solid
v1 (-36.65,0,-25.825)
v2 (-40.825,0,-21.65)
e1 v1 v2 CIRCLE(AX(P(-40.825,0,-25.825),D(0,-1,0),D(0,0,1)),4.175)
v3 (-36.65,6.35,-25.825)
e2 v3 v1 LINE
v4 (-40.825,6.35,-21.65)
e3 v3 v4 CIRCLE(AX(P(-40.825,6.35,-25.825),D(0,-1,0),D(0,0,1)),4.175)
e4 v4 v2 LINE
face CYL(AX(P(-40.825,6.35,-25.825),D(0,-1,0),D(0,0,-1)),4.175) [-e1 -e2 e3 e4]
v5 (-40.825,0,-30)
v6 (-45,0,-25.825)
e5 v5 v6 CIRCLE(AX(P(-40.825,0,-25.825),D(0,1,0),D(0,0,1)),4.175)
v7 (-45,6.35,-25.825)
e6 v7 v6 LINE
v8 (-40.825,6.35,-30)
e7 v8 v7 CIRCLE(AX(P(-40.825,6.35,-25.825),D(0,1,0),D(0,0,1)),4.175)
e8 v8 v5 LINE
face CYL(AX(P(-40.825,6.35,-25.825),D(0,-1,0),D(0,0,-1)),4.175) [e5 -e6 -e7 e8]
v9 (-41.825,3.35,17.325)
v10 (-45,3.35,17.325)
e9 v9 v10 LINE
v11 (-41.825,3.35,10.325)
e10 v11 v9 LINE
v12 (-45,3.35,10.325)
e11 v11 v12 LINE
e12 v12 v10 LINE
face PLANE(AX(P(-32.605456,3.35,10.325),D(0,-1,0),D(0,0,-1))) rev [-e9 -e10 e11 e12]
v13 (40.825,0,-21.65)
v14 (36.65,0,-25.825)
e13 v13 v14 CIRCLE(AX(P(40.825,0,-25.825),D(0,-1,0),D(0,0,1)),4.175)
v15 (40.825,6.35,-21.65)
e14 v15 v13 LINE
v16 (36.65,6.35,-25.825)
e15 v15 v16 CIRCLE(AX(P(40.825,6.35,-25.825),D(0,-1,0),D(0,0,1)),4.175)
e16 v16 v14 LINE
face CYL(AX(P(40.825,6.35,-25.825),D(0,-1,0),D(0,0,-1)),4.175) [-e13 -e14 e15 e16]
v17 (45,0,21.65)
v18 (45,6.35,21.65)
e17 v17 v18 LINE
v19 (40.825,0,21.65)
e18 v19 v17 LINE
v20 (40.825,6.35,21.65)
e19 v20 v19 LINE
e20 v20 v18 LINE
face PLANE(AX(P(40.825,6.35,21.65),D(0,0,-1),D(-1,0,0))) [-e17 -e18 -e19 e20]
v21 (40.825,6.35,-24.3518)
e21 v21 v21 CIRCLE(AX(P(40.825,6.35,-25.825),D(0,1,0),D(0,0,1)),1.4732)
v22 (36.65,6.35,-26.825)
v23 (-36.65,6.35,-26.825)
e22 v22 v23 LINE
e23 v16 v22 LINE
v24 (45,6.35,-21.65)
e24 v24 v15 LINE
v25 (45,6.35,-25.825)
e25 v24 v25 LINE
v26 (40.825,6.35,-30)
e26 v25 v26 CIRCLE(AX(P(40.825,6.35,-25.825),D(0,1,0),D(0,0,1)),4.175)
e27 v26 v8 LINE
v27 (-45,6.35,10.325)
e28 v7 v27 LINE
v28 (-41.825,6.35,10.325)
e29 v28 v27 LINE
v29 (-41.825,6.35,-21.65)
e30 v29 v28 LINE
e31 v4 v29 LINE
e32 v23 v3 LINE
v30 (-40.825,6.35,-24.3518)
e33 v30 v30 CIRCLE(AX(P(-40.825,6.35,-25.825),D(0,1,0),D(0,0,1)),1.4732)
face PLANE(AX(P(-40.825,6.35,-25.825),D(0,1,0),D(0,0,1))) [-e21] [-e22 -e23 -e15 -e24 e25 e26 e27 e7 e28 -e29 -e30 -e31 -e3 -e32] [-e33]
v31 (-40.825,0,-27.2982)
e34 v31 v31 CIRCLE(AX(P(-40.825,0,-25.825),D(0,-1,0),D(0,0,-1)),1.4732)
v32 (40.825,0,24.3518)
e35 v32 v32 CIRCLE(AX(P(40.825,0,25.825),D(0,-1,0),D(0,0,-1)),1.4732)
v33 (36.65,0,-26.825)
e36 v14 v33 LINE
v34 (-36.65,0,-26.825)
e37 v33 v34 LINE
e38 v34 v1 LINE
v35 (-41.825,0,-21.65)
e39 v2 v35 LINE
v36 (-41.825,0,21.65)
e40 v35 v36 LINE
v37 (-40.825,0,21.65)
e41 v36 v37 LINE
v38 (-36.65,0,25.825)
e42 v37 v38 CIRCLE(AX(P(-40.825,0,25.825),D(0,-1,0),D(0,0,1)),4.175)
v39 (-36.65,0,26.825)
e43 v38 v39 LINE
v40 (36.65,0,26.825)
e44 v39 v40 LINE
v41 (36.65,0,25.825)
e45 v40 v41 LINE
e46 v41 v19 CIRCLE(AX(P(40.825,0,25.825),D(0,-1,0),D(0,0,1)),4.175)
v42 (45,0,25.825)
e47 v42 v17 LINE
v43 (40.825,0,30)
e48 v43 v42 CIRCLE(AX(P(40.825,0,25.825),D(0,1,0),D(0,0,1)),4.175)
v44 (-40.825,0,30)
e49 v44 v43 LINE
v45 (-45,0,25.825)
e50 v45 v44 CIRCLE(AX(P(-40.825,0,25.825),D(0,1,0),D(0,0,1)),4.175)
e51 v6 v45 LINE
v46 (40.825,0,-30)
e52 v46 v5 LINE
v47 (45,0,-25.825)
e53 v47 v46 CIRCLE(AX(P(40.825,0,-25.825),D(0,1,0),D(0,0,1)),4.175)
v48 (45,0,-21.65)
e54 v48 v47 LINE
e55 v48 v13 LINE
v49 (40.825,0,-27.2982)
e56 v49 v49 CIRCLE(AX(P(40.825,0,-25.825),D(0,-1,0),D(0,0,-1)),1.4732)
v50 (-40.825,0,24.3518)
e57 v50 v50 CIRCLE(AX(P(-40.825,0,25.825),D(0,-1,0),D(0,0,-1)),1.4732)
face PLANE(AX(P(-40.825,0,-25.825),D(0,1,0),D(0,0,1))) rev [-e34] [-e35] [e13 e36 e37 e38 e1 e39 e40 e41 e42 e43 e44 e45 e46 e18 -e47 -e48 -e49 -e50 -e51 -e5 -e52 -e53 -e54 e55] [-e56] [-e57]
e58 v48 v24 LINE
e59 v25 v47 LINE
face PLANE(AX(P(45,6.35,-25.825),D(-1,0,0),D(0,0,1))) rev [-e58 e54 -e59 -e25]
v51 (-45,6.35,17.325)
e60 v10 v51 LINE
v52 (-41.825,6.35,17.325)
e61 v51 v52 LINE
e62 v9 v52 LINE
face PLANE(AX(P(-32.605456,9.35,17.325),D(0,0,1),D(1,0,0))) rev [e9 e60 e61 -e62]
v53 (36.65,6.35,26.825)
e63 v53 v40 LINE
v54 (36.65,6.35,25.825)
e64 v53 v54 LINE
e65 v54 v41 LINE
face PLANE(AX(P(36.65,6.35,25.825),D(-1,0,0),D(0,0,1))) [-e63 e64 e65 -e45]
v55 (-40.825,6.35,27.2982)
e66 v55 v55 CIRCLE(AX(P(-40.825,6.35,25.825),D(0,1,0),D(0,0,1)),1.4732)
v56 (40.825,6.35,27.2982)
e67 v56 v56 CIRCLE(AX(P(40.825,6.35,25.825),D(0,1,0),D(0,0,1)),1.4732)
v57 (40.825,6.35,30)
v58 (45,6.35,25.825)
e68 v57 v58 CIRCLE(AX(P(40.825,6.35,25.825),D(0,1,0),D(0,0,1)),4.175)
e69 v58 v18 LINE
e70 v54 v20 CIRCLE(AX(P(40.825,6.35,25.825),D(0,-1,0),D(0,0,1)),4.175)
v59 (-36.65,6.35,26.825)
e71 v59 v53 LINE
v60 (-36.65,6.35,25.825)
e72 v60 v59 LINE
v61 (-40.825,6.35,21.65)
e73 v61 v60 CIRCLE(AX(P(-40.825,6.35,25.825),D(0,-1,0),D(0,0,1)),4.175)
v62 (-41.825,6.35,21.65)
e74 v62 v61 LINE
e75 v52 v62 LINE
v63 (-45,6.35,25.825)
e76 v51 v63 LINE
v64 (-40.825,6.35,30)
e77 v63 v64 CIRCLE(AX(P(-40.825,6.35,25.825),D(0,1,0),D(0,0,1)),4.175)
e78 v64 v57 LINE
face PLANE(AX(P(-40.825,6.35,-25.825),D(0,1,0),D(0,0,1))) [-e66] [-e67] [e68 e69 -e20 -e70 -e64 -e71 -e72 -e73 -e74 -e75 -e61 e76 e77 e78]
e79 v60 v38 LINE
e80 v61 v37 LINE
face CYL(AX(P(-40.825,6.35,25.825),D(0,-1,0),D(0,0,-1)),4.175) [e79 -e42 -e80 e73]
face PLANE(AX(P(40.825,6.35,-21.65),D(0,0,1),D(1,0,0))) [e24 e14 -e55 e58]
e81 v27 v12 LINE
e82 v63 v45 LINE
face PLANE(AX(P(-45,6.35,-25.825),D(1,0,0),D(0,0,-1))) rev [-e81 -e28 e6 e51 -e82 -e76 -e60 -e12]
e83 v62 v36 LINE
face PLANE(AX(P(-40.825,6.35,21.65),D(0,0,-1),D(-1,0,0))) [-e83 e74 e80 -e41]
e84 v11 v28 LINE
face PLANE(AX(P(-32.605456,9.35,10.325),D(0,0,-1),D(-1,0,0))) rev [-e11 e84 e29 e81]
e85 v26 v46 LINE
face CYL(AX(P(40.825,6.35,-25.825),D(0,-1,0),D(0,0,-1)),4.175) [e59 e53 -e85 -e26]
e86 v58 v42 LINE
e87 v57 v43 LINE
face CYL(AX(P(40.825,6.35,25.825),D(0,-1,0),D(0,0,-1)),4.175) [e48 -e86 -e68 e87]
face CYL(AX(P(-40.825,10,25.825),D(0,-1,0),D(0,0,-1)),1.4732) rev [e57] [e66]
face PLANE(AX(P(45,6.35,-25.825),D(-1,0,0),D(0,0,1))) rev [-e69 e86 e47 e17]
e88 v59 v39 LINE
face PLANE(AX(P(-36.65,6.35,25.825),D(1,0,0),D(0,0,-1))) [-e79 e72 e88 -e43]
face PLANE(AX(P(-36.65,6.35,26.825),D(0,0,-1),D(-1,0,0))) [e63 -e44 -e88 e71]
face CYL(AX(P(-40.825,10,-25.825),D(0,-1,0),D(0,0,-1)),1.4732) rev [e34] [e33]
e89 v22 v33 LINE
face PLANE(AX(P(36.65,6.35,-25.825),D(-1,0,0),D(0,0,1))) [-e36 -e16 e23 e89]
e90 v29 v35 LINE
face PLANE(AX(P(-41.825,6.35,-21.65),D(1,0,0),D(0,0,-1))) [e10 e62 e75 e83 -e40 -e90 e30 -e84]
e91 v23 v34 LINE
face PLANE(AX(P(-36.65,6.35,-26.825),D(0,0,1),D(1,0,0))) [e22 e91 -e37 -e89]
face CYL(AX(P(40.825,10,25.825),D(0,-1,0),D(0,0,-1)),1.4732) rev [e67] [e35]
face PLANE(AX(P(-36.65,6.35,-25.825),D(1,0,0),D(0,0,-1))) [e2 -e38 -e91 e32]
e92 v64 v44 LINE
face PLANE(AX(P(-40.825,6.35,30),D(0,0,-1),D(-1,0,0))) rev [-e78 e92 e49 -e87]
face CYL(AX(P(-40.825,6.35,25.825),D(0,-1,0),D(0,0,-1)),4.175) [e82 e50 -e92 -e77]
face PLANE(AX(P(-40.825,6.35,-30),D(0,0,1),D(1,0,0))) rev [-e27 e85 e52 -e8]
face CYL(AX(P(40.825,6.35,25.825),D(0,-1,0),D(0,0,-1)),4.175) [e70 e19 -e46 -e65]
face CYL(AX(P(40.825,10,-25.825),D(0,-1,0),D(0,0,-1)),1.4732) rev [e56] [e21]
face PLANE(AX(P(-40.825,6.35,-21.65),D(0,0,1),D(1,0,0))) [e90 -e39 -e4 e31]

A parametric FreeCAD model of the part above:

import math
import FreeCAD as App
import Part
import Sketcher
from FreeCAD import Vector
Q = App.Units.Quantity


def add_polygon(sketch, points):
    """Adds a closed chain of lines whose ends are joined by coincident constraints."""
    first, n = sketch.GeometryCount, len(points)
    for a, b in zip(points, points[1:] + points[:1]):
        sketch.addGeometry(Part.LineSegment(App.Vector(*a, 0), App.Vector(*b, 0)), False)
    for i in range(n):
        sketch.addConstraint(Sketcher.Constraint("Coincident", first + i, 2, first + (i + 1) % n, 1))

doc = App.newDocument("Part")
body = doc.addObject("PartDesign::Body", "Body")

sketch1 = body.newObject("Sketcher::SketchObject", "Sketch")
sketch1.AttachmentSupport = (doc.getObject("XZ_Plane"), [""])
sketch1.MapMode = "FlatFace"
sketch1.addGeometry(Part.LineSegment(Vector(-45, -25.8, 0), Vector(-45, 25.8, 0)), False)
sketch1.addGeometry(Part.ArcOfCircle(Part.Circle(Vector(-40.8, 25.8, 0), Vector(0, 0, 1), 4.2), math.radians(90), math.radians(180)), False)
sketch1.addGeometry(Part.LineSegment(Vector(-40.8, 30, 0), Vector(40.8, 30, 0)), False)
sketch1.addGeometry(Part.ArcOfCircle(Part.Circle(Vector(40.8, 25.8, 0), Vector(0, 0, 1), 4.2), math.radians(0), math.radians(90)), False)
sketch1.addGeometry(Part.LineSegment(Vector(45, 25.8, 0), Vector(45, -25.8, 0)), False)
sketch1.addGeometry(Part.ArcOfCircle(Part.Circle(Vector(40.8, -25.8, 0), Vector(0, 0, 1), 4.2), math.radians(-90), math.radians(0)), False)
sketch1.addGeometry(Part.LineSegment(Vector(40.8, -30, 0), Vector(-40.8, -30, 0)), False)
sketch1.addGeometry(Part.ArcOfCircle(Part.Circle(Vector(-40.8, -25.8, 0), Vector(0, 0, 1), 4.2), math.radians(-180), math.radians(-90)), False)
sketch1.addGeometry(Part.ArcOfCircle(Part.Circle(Vector(40.8, -25.8, 0), Vector(0, 0, 1), 4.2), math.radians(90), math.radians(180)), False)
sketch1.addGeometry(Part.LineSegment(Vector(40.8, -21.6, 0), Vector(41.8, -21.6, 0)), False)
sketch1.addGeometry(Part.LineSegment(Vector(41.8, -21.6, 0), Vector(41.8, 21.6, 0)), False)
sketch1.addGeometry(Part.LineSegment(Vector(41.8, 21.6, 0), Vector(40.8, 21.6, 0)), False)
sketch1.addGeometry(Part.ArcOfCircle(Part.Circle(Vector(40.8, 25.8, 0), Vector(0, 0, 1), 4.2), math.radians(-180), math.radians(-90)), False)
sketch1.addGeometry(Part.LineSegment(Vector(36.6, 25.8, 0), Vector(36.6, 26.8, 0)), False)
sketch1.addGeometry(Part.LineSegment(Vector(36.6, 26.8, 0), Vector(-36.6, 26.8, 0)), False)
sketch1.addGeometry(Part.LineSegment(Vector(-36.6, 26.8, 0), Vector(-36.6, 25.8, 0)), False)
sketch1.addGeometry(Part.ArcOfCircle(Part.Circle(Vector(-40.8, 25.8, 0), Vector(0, 0, 1), 4.2), math.radians(-90), math.radians(0)), False)
sketch1.addGeometry(Part.LineSegment(Vector(-40.8, 21.6, 0), Vector(-41.8, 21.6, 0)), False)
sketch1.addGeometry(Part.LineSegment(Vector(-41.8, 21.6, 0), Vector(-41.8, -21.6, 0)), False)
sketch1.addGeometry(Part.LineSegment(Vector(-41.8, -21.6, 0), Vector(-40.8, -21.6, 0)), False)
sketch1.addGeometry(Part.ArcOfCircle(Part.Circle(Vector(-40.8, -25.8, 0), Vector(0, 0, 1), 4.2), math.radians(0), math.radians(90)), False)
sketch1.addGeometry(Part.LineSegment(Vector(-36.6, -25.8, 0), Vector(-36.6, -26.8, 0)), False)
sketch1.addGeometry(Part.LineSegment(Vector(-36.6, -26.8, 0), Vector(36.6, -26.8, 0)), False)
sketch1.addGeometry(Part.LineSegment(Vector(36.6, -26.8, 0), Vector(36.6, -25.8, 0)), False)
sketch1.addConstraint(Sketcher.Constraint("Tangent", 0, 2, 1, 2))
sketch1.addConstraint(Sketcher.Constraint("Tangent", 1, 1, 2, 1))
sketch1.addConstraint(Sketcher.Constraint("Tangent", 2, 2, 3, 2))
sketch1.addConstraint(Sketcher.Constraint("Tangent", 3, 1, 4, 1))
sketch1.addConstraint(Sketcher.Constraint("Tangent", 4, 2, 5, 2))
sketch1.addConstraint(Sketcher.Constraint("Tangent", 5, 1, 6, 1))
sketch1.addConstraint(Sketcher.Constraint("Tangent", 6, 2, 7, 2))
sketch1.addConstraint(Sketcher.Constraint("Tangent", 7, 1, 0, 1))
sketch1.addConstraint(Sketcher.Constraint("Tangent", 8, 1, 9, 1))
sketch1.addConstraint(Sketcher.Constraint("Coincident", 9, 2, 10, 1))
sketch1.addConstraint(Sketcher.Constraint("Coincident", 10, 2, 11, 1))
sketch1.addConstraint(Sketcher.Constraint("Tangent", 11, 2, 12, 2))
sketch1.addConstraint(Sketcher.Constraint("Tangent", 12, 1, 13, 1))
sketch1.addConstraint(Sketcher.Constraint("Coincident", 13, 2, 14, 1))
sketch1.addConstraint(Sketcher.Constraint("Coincident", 14, 2, 15, 1))
sketch1.addConstraint(Sketcher.Constraint("Tangent", 15, 2, 16, 2))
sketch1.addConstraint(Sketcher.Constraint("Tangent", 16, 1, 17, 1))
sketch1.addConstraint(Sketcher.Constraint("Coincident", 17, 2, 18, 1))
sketch1.addConstraint(Sketcher.Constraint("Coincident", 18, 2, 19, 1))
sketch1.addConstraint(Sketcher.Constraint("Tangent", 19, 2, 20, 2))
sketch1.addConstraint(Sketcher.Constraint("Tangent", 20, 1, 21, 1))
sketch1.addConstraint(Sketcher.Constraint("Coincident", 21, 2, 22, 1))
sketch1.addConstraint(Sketcher.Constraint("Coincident", 22, 2, 23, 1))
sketch1.addConstraint(Sketcher.Constraint("Tangent", 23, 2, 8, 2))
sketch1.addConstraint(Sketcher.Constraint("Vertical", 0))
sketch1.addConstraint(Sketcher.Constraint("Horizontal", 2))
sketch1.addConstraint(Sketcher.Constraint("Vertical", 4))
sketch1.addConstraint(Sketcher.Constraint("Horizontal", 6))
sketch1.addConstraint(Sketcher.Constraint("Horizontal", 9))
sketch1.addConstraint(Sketcher.Constraint("Vertical", 10))
sketch1.addConstraint(Sketcher.Constraint("Horizontal", 11))
sketch1.addConstraint(Sketcher.Constraint("Vertical", 13))
sketch1.addConstraint(Sketcher.Constraint("Horizontal", 14))
sketch1.addConstraint(Sketcher.Constraint("Vertical", 15))
sketch1.addConstraint(Sketcher.Constraint("Horizontal", 17))
sketch1.addConstraint(Sketcher.Constraint("Vertical", 18))
sketch1.addConstraint(Sketcher.Constraint("Horizontal", 19))
sketch1.addConstraint(Sketcher.Constraint("Vertical", 21))
sketch1.addConstraint(Sketcher.Constraint("Horizontal", 22))
sketch1.addConstraint(Sketcher.Constraint("Vertical", 23))
sketch1.addConstraint(Sketcher.Constraint("Coincident", 8, 3, 5, 3))
sketch1.addConstraint(Sketcher.Constraint("Coincident", 12, 3, 3, 3))
sketch1.addConstraint(Sketcher.Constraint("Coincident", 16, 3, 1, 3))
sketch1.addConstraint(Sketcher.Constraint("Coincident", 20, 3, 7, 3))
sketch1.addConstraint(Sketcher.Constraint("Equal", 1, 3))
sketch1.addConstraint(Sketcher.Constraint("Equal", 3, 5))
sketch1.addConstraint(Sketcher.Constraint("Equal", 5, 7))
sketch1.addConstraint(Sketcher.Constraint("Equal", 7, 8))
sketch1.addConstraint(Sketcher.Constraint("Equal", 8, 12))
sketch1.addConstraint(Sketcher.Constraint("Equal", 12, 16))
sketch1.addConstraint(Sketcher.Constraint("Equal", 16, 20))
sketch1.addConstraint(Sketcher.Constraint("Symmetric", 1, 3, 5, 3, -1, 1))
sketch1.addConstraint(Sketcher.Constraint("Equal", 11, 17))
sketch1.addConstraint(Sketcher.Constraint("Equal", 19, 13))
sketch1.addConstraint(Sketcher.Constraint("Equal", 15, 21))
sketch1.addConstraint(Sketcher.Constraint("DistanceX", 9, 1, 9, 2, Q("1 mm")))
sketch1.addConstraint(Sketcher.Constraint("DistanceX", 14, 2, 14, 1, Q("73.3 mm")))
sketch1.addConstraint(Sketcher.Constraint("DistanceY", 10, 1, 10, 2, Q("43.3 mm")))
sketch1.addConstraint(Sketcher.Constraint("DistanceX", 0, 2, -1, 1, Q("45 mm")))
pad1 = body.newObject("PartDesign::Pad", "Pad")
pad1.Profile = sketch1
pad1.Length = 6.35
pad1.Reversed = True

sketch2 = body.newObject("Sketcher::SketchObject", "Sketch001")
sketch2.AttachmentSupport = (doc.getObject("YZ_Plane"), [""])
sketch2.MapMode = "FlatFace"
sketch2.AttachmentOffset = App.Placement(Vector(0, 0, -45), App.Rotation())
add_polygon(sketch2, [(9, 10), (3, 10), (3, 17), (9, 17)])
sketch2.addConstraint(Sketcher.Constraint("Horizontal", 0))
sketch2.addConstraint(Sketcher.Constraint("Vertical", 1))
sketch2.addConstraint(Sketcher.Constraint("Horizontal", 2))
sketch2.addConstraint(Sketcher.Constraint("Vertical", 3))
sketch2.addConstraint(Sketcher.Constraint("DistanceX", 0, 2, 0, 1, Q("6 mm")))
sketch2.addConstraint(Sketcher.Constraint("DistanceY", 1, 1, 1, 2, Q("7 mm")))
sketch2.addConstraint(Sketcher.Constraint("DistanceX", -1, 1, 0, 2, Q("3.35 mm")))
sketch2.addConstraint(Sketcher.Constraint("DistanceY", -1, 1, 0, 2, Q("10.325 mm")))
pocket1 = body.newObject("PartDesign::Pocket", "Pocket")
pocket1.Profile = sketch2
pocket1.Length = 3.175
pocket1.Reversed = True

sketch3 = body.newObject("Sketcher::SketchObject", "Sketch002")
sketch3.AttachmentSupport = (doc.getObject("XZ_Plane"), [""])
sketch3.MapMode = "FlatFace"
sketch3.addGeometry(Part.Circle(Vector(-40.8, -25.8, 0), Vector(0, 0, 1), 1.5), False)
sketch3.addGeometry(Part.Circle(Vector(-40.8, 25.8, 0), Vector(0, 0, 1), 1.5), False)
sketch3.addGeometry(Part.Circle(Vector(40.8, 25.8, 0), Vector(0, 0, 1), 1.5), False)
sketch3.addGeometry(Part.Circle(Vector(40.8, -25.8, 0), Vector(0, 0, 1), 1.5), False)
sketch3.addConstraint(Sketcher.Constraint("Equal", 0, 1))
sketch3.addConstraint(Sketcher.Constraint("Equal", 1, 2))
sketch3.addConstraint(Sketcher.Constraint("Equal", 2, 3))
sketch3.addConstraint(Sketcher.Constraint("Symmetric", 0, 3, 2, 3, -1, 1))
sketch3.addConstraint(Sketcher.Constraint("Symmetric", 1, 3, 3, 3, -1, 1))
sketch3.addConstraint(Sketcher.Constraint("Symmetric", 1, 3, 2, 3, -2))
sketch3.addConstraint(Sketcher.Constraint("Diameter", 0, Q("2.9464 mm")))
sketch3.addConstraint(Sketcher.Constraint("DistanceY", 0, 3, 1, 3, Q("51.65 mm")))
sketch3.addConstraint(Sketcher.Constraint("DistanceX", 1, 3, 2, 3, Q("81.65 mm")))
pocket2 = body.newObject("PartDesign::Pocket", "Pocket001")
pocket2.Profile = sketch3
pocket2.Length = 10

sketch4 = body.newObject("Sketcher::SketchObject", "Sketch003")
sketch4.AttachmentSupport = (doc.getObject("XZ_Plane"), [""])
sketch4.MapMode = "FlatFace"
sketch4.AttachmentOffset = App.Placement(Vector(0, 0, -6.35), App.Rotation())
add_polygon(sketch4, [(41.8, -21.6), (41.8, 21.6), (45, 21.6), (45, -21.6)])
sketch4.addConstraint(Sketcher.Constraint("Vertical", 0))
sketch4.addConstraint(Sketcher.Constraint("Horizontal", 1))
sketch4.addConstraint(Sketcher.Constraint("Vertical", 2))
sketch4.addConstraint(Sketcher.Constraint("Horizontal", 3))
sketch4.addConstraint(Sketcher.Constraint("DistanceY", 0, 1, 0, 2, Q("43.3 mm")))
sketch4.addConstraint(Sketcher.Constraint("DistanceX", -1, 1, 1, 2, Q("45 mm")))
sketch4.addConstraint(Sketcher.Constraint("DistanceX", 1, 1, 1, 2, Q("3.175 mm")))
sketch4.addConstraint(Sketcher.Constraint("DistanceY", -1, 1, 0, 2, Q("21.65 mm")))
pocket3 = body.newObject("PartDesign::Pocket", "Pocket002")
pocket3.Profile = sketch4
pocket3.Type = "ThroughAll"
pocket3.Reversed = True

doc.recompute()
